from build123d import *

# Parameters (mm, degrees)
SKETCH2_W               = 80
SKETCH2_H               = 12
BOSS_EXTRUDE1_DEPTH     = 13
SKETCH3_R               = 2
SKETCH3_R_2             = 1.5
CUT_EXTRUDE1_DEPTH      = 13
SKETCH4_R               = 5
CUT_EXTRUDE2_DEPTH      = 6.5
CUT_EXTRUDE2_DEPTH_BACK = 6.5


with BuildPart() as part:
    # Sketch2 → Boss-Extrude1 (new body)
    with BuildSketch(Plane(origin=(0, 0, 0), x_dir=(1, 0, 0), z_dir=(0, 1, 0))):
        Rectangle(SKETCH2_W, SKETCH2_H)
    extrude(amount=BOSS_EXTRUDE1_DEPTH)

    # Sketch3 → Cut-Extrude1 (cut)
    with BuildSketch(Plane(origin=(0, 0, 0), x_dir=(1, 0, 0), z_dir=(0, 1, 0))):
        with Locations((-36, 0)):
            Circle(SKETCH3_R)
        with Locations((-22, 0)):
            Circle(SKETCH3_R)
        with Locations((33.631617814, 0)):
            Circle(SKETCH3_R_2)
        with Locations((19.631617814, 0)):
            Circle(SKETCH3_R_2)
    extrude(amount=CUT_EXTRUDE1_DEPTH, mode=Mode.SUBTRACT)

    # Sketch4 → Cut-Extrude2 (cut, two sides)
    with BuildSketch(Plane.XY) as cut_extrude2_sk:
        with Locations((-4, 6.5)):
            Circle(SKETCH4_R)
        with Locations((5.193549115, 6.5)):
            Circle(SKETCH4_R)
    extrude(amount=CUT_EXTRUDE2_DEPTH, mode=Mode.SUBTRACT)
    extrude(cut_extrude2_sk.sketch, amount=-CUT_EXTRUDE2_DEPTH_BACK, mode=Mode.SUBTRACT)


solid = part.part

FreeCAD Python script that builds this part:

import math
import FreeCAD as App
import Part
import Sketcher

doc = App.newDocument("Part")
params = doc.addObject("Spreadsheet::Sheet", "Params")
for row, (alias, value) in enumerate([
    ("sketch1_width", "80 mm"),
    ("sketch1_height", "12 mm"),
    ("pad1_length", "13 mm"),
    ("sketch2_diameter", "4 mm"),
    ("sketch2_diameter2", "3 mm"),
    ("pocket1_length", "13 mm"),
    ("sketch3_radius", "5 mm"),
], start=1):
    params.set(f"A{row}", alias)
    params.set(f"B{row}", "=" + value)
    params.setAlias(f"B{row}", alias)

body = doc.addObject("PartDesign::Body", "Body")

sketch1 = body.newObject("Sketcher::SketchObject", "Sketch")
sketch1.AttachmentSupport = (doc.getObject("XZ_Plane"), [""])
sketch1.MapMode = "FlatFace"
sketch1.addGeometry([
    Part.LineSegment(App.Vector(-40, -6, 0), App.Vector(-40, 6, 0)),
    Part.LineSegment(App.Vector(-40, 6, 0), App.Vector(40, 6, 0)),
    Part.LineSegment(App.Vector(40, 6, 0), App.Vector(40, -6, 0)),
    Part.LineSegment(App.Vector(40, -6, 0), App.Vector(-40, -6, 0)),
], False)
sketch1.addConstraint([
    Sketcher.Constraint("Coincident", 0, 2, 1, 1),
    Sketcher.Constraint("Coincident", 1, 2, 2, 1),
    Sketcher.Constraint("Coincident", 2, 2, 3, 1),
    Sketcher.Constraint("Coincident", 3, 2, 0, 1),
    Sketcher.Constraint("Vertical", 0),
    Sketcher.Constraint("Horizontal", 1),
    Sketcher.Constraint("Vertical", 2),
    Sketcher.Constraint("Horizontal", 3),
    Sketcher.Constraint("Symmetric", 0, 2, 2, 2, -1, 1),
    Sketcher.Constraint("DistanceX", 1, 1, 1, 2, 80.0),
    Sketcher.Constraint("DistanceY", 0, 1, 0, 2, 12.0),
])
sketch1.setExpression("Constraints[9]", "Params.sketch1_width")
sketch1.setExpression("Constraints[10]", "Params.sketch1_height")
pad1 = body.newObject("PartDesign::Pad", "Pad")
pad1.Profile = sketch1
pad1.setExpression("Length", "Params.pad1_length")
pad1.Reversed = True

sketch2 = body.newObject("Sketcher::SketchObject", "Sketch001")
sketch2.AttachmentSupport = (doc.getObject("XZ_Plane"), [""])
sketch2.MapMode = "FlatFace"
sketch2.addGeometry([
    Part.Circle(App.Vector(-36, 0, 0), App.Vector(0, 0, 1), 2),
    Part.Circle(App.Vector(-22, 0, 0), App.Vector(0, 0, 1), 2),
    Part.Circle(App.Vector(33.6, 0, 0), App.Vector(0, 0, 1), 1.5),
    Part.Circle(App.Vector(19.6, 0, 0), App.Vector(0, 0, 1), 1.5),
], False)
sketch2.addConstraint([
    Sketcher.Constraint("Equal", 0, 1),
    Sketcher.Constraint("Equal", 2, 3),
    Sketcher.Constraint("PointOnObject", 0, 3, -1),
    Sketcher.Constraint("PointOnObject", 1, 3, -1),
    Sketcher.Constraint("PointOnObject", 2, 3, -1),
    Sketcher.Constraint("PointOnObject", 3, 3, -1),
    Sketcher.Constraint("Diameter", 0, 4.0),
    Sketcher.Constraint("Diameter", 2, 3.0),
    Sketcher.Constraint("DistanceX", 0, 3, -1, 1, 36.0),
    Sketcher.Constraint("DistanceX", 1, 3, -1, 1, 22.0),
    Sketcher.Constraint("DistanceX", 3, 3, 2, 3, 14.0),
    Sketcher.Constraint("DistanceX", -1, 1, 2, 3, 33.631618),
])
sketch2.setExpression("Constraints[6]", "Params.sketch2_diameter")
sketch2.setExpression("Constraints[7]", "Params.sketch2_diameter2")
pocket1 = body.newObject("PartDesign::Pocket", "Pocket")
pocket1.Profile = sketch2
pocket1.setExpression("Length", "Params.pocket1_length")

sketch3 = body.newObject("Sketcher::SketchObject", "Sketch002")
sketch3.AttachmentSupport = (doc.getObject("XY_Plane"), [""])
sketch3.MapMode = "FlatFace"
sketch3.addGeometry([
    Part.ArcOfCircle(Part.Circle(App.Vector(5.2, 6.5, 0), App.Vector(0, 0, 1), 5), math.radians(-157), math.radians(157)),
    Part.ArcOfCircle(Part.Circle(App.Vector(-4, 6.5, 0), App.Vector(0, 0, 1), 5), math.radians(23), math.radians(337)),
], False)
sketch3.addConstraint([
    Sketcher.Constraint("Coincident", 0, 1, 1, 2),
    Sketcher.Constraint("Coincident", 1, 1, 0, 2),
    Sketcher.Constraint("Equal", 0, 1),
    Sketcher.Constraint("Horizontal", 0, 3, 1, 3),
    Sketcher.Constraint("Radius", 0, 5.0),
    Sketcher.Constraint("DistanceX", 1, 3, -1, 1, 4.0),
    Sketcher.Constraint("DistanceY", -1, 1, 0, 3, 6.5),
    Sketcher.Constraint("DistanceX", -1, 1, 0, 3, 5.193549),
])
sketch3.setExpression("Constraints[4]", "Params.sketch3_radius")
pocket2 = body.newObject("PartDesign::Pocket", "Pocket001")
pocket2.Profile = sketch3
pocket2.Type = "ThroughAll"
pocket2.Midplane = True

doc.recompute()
